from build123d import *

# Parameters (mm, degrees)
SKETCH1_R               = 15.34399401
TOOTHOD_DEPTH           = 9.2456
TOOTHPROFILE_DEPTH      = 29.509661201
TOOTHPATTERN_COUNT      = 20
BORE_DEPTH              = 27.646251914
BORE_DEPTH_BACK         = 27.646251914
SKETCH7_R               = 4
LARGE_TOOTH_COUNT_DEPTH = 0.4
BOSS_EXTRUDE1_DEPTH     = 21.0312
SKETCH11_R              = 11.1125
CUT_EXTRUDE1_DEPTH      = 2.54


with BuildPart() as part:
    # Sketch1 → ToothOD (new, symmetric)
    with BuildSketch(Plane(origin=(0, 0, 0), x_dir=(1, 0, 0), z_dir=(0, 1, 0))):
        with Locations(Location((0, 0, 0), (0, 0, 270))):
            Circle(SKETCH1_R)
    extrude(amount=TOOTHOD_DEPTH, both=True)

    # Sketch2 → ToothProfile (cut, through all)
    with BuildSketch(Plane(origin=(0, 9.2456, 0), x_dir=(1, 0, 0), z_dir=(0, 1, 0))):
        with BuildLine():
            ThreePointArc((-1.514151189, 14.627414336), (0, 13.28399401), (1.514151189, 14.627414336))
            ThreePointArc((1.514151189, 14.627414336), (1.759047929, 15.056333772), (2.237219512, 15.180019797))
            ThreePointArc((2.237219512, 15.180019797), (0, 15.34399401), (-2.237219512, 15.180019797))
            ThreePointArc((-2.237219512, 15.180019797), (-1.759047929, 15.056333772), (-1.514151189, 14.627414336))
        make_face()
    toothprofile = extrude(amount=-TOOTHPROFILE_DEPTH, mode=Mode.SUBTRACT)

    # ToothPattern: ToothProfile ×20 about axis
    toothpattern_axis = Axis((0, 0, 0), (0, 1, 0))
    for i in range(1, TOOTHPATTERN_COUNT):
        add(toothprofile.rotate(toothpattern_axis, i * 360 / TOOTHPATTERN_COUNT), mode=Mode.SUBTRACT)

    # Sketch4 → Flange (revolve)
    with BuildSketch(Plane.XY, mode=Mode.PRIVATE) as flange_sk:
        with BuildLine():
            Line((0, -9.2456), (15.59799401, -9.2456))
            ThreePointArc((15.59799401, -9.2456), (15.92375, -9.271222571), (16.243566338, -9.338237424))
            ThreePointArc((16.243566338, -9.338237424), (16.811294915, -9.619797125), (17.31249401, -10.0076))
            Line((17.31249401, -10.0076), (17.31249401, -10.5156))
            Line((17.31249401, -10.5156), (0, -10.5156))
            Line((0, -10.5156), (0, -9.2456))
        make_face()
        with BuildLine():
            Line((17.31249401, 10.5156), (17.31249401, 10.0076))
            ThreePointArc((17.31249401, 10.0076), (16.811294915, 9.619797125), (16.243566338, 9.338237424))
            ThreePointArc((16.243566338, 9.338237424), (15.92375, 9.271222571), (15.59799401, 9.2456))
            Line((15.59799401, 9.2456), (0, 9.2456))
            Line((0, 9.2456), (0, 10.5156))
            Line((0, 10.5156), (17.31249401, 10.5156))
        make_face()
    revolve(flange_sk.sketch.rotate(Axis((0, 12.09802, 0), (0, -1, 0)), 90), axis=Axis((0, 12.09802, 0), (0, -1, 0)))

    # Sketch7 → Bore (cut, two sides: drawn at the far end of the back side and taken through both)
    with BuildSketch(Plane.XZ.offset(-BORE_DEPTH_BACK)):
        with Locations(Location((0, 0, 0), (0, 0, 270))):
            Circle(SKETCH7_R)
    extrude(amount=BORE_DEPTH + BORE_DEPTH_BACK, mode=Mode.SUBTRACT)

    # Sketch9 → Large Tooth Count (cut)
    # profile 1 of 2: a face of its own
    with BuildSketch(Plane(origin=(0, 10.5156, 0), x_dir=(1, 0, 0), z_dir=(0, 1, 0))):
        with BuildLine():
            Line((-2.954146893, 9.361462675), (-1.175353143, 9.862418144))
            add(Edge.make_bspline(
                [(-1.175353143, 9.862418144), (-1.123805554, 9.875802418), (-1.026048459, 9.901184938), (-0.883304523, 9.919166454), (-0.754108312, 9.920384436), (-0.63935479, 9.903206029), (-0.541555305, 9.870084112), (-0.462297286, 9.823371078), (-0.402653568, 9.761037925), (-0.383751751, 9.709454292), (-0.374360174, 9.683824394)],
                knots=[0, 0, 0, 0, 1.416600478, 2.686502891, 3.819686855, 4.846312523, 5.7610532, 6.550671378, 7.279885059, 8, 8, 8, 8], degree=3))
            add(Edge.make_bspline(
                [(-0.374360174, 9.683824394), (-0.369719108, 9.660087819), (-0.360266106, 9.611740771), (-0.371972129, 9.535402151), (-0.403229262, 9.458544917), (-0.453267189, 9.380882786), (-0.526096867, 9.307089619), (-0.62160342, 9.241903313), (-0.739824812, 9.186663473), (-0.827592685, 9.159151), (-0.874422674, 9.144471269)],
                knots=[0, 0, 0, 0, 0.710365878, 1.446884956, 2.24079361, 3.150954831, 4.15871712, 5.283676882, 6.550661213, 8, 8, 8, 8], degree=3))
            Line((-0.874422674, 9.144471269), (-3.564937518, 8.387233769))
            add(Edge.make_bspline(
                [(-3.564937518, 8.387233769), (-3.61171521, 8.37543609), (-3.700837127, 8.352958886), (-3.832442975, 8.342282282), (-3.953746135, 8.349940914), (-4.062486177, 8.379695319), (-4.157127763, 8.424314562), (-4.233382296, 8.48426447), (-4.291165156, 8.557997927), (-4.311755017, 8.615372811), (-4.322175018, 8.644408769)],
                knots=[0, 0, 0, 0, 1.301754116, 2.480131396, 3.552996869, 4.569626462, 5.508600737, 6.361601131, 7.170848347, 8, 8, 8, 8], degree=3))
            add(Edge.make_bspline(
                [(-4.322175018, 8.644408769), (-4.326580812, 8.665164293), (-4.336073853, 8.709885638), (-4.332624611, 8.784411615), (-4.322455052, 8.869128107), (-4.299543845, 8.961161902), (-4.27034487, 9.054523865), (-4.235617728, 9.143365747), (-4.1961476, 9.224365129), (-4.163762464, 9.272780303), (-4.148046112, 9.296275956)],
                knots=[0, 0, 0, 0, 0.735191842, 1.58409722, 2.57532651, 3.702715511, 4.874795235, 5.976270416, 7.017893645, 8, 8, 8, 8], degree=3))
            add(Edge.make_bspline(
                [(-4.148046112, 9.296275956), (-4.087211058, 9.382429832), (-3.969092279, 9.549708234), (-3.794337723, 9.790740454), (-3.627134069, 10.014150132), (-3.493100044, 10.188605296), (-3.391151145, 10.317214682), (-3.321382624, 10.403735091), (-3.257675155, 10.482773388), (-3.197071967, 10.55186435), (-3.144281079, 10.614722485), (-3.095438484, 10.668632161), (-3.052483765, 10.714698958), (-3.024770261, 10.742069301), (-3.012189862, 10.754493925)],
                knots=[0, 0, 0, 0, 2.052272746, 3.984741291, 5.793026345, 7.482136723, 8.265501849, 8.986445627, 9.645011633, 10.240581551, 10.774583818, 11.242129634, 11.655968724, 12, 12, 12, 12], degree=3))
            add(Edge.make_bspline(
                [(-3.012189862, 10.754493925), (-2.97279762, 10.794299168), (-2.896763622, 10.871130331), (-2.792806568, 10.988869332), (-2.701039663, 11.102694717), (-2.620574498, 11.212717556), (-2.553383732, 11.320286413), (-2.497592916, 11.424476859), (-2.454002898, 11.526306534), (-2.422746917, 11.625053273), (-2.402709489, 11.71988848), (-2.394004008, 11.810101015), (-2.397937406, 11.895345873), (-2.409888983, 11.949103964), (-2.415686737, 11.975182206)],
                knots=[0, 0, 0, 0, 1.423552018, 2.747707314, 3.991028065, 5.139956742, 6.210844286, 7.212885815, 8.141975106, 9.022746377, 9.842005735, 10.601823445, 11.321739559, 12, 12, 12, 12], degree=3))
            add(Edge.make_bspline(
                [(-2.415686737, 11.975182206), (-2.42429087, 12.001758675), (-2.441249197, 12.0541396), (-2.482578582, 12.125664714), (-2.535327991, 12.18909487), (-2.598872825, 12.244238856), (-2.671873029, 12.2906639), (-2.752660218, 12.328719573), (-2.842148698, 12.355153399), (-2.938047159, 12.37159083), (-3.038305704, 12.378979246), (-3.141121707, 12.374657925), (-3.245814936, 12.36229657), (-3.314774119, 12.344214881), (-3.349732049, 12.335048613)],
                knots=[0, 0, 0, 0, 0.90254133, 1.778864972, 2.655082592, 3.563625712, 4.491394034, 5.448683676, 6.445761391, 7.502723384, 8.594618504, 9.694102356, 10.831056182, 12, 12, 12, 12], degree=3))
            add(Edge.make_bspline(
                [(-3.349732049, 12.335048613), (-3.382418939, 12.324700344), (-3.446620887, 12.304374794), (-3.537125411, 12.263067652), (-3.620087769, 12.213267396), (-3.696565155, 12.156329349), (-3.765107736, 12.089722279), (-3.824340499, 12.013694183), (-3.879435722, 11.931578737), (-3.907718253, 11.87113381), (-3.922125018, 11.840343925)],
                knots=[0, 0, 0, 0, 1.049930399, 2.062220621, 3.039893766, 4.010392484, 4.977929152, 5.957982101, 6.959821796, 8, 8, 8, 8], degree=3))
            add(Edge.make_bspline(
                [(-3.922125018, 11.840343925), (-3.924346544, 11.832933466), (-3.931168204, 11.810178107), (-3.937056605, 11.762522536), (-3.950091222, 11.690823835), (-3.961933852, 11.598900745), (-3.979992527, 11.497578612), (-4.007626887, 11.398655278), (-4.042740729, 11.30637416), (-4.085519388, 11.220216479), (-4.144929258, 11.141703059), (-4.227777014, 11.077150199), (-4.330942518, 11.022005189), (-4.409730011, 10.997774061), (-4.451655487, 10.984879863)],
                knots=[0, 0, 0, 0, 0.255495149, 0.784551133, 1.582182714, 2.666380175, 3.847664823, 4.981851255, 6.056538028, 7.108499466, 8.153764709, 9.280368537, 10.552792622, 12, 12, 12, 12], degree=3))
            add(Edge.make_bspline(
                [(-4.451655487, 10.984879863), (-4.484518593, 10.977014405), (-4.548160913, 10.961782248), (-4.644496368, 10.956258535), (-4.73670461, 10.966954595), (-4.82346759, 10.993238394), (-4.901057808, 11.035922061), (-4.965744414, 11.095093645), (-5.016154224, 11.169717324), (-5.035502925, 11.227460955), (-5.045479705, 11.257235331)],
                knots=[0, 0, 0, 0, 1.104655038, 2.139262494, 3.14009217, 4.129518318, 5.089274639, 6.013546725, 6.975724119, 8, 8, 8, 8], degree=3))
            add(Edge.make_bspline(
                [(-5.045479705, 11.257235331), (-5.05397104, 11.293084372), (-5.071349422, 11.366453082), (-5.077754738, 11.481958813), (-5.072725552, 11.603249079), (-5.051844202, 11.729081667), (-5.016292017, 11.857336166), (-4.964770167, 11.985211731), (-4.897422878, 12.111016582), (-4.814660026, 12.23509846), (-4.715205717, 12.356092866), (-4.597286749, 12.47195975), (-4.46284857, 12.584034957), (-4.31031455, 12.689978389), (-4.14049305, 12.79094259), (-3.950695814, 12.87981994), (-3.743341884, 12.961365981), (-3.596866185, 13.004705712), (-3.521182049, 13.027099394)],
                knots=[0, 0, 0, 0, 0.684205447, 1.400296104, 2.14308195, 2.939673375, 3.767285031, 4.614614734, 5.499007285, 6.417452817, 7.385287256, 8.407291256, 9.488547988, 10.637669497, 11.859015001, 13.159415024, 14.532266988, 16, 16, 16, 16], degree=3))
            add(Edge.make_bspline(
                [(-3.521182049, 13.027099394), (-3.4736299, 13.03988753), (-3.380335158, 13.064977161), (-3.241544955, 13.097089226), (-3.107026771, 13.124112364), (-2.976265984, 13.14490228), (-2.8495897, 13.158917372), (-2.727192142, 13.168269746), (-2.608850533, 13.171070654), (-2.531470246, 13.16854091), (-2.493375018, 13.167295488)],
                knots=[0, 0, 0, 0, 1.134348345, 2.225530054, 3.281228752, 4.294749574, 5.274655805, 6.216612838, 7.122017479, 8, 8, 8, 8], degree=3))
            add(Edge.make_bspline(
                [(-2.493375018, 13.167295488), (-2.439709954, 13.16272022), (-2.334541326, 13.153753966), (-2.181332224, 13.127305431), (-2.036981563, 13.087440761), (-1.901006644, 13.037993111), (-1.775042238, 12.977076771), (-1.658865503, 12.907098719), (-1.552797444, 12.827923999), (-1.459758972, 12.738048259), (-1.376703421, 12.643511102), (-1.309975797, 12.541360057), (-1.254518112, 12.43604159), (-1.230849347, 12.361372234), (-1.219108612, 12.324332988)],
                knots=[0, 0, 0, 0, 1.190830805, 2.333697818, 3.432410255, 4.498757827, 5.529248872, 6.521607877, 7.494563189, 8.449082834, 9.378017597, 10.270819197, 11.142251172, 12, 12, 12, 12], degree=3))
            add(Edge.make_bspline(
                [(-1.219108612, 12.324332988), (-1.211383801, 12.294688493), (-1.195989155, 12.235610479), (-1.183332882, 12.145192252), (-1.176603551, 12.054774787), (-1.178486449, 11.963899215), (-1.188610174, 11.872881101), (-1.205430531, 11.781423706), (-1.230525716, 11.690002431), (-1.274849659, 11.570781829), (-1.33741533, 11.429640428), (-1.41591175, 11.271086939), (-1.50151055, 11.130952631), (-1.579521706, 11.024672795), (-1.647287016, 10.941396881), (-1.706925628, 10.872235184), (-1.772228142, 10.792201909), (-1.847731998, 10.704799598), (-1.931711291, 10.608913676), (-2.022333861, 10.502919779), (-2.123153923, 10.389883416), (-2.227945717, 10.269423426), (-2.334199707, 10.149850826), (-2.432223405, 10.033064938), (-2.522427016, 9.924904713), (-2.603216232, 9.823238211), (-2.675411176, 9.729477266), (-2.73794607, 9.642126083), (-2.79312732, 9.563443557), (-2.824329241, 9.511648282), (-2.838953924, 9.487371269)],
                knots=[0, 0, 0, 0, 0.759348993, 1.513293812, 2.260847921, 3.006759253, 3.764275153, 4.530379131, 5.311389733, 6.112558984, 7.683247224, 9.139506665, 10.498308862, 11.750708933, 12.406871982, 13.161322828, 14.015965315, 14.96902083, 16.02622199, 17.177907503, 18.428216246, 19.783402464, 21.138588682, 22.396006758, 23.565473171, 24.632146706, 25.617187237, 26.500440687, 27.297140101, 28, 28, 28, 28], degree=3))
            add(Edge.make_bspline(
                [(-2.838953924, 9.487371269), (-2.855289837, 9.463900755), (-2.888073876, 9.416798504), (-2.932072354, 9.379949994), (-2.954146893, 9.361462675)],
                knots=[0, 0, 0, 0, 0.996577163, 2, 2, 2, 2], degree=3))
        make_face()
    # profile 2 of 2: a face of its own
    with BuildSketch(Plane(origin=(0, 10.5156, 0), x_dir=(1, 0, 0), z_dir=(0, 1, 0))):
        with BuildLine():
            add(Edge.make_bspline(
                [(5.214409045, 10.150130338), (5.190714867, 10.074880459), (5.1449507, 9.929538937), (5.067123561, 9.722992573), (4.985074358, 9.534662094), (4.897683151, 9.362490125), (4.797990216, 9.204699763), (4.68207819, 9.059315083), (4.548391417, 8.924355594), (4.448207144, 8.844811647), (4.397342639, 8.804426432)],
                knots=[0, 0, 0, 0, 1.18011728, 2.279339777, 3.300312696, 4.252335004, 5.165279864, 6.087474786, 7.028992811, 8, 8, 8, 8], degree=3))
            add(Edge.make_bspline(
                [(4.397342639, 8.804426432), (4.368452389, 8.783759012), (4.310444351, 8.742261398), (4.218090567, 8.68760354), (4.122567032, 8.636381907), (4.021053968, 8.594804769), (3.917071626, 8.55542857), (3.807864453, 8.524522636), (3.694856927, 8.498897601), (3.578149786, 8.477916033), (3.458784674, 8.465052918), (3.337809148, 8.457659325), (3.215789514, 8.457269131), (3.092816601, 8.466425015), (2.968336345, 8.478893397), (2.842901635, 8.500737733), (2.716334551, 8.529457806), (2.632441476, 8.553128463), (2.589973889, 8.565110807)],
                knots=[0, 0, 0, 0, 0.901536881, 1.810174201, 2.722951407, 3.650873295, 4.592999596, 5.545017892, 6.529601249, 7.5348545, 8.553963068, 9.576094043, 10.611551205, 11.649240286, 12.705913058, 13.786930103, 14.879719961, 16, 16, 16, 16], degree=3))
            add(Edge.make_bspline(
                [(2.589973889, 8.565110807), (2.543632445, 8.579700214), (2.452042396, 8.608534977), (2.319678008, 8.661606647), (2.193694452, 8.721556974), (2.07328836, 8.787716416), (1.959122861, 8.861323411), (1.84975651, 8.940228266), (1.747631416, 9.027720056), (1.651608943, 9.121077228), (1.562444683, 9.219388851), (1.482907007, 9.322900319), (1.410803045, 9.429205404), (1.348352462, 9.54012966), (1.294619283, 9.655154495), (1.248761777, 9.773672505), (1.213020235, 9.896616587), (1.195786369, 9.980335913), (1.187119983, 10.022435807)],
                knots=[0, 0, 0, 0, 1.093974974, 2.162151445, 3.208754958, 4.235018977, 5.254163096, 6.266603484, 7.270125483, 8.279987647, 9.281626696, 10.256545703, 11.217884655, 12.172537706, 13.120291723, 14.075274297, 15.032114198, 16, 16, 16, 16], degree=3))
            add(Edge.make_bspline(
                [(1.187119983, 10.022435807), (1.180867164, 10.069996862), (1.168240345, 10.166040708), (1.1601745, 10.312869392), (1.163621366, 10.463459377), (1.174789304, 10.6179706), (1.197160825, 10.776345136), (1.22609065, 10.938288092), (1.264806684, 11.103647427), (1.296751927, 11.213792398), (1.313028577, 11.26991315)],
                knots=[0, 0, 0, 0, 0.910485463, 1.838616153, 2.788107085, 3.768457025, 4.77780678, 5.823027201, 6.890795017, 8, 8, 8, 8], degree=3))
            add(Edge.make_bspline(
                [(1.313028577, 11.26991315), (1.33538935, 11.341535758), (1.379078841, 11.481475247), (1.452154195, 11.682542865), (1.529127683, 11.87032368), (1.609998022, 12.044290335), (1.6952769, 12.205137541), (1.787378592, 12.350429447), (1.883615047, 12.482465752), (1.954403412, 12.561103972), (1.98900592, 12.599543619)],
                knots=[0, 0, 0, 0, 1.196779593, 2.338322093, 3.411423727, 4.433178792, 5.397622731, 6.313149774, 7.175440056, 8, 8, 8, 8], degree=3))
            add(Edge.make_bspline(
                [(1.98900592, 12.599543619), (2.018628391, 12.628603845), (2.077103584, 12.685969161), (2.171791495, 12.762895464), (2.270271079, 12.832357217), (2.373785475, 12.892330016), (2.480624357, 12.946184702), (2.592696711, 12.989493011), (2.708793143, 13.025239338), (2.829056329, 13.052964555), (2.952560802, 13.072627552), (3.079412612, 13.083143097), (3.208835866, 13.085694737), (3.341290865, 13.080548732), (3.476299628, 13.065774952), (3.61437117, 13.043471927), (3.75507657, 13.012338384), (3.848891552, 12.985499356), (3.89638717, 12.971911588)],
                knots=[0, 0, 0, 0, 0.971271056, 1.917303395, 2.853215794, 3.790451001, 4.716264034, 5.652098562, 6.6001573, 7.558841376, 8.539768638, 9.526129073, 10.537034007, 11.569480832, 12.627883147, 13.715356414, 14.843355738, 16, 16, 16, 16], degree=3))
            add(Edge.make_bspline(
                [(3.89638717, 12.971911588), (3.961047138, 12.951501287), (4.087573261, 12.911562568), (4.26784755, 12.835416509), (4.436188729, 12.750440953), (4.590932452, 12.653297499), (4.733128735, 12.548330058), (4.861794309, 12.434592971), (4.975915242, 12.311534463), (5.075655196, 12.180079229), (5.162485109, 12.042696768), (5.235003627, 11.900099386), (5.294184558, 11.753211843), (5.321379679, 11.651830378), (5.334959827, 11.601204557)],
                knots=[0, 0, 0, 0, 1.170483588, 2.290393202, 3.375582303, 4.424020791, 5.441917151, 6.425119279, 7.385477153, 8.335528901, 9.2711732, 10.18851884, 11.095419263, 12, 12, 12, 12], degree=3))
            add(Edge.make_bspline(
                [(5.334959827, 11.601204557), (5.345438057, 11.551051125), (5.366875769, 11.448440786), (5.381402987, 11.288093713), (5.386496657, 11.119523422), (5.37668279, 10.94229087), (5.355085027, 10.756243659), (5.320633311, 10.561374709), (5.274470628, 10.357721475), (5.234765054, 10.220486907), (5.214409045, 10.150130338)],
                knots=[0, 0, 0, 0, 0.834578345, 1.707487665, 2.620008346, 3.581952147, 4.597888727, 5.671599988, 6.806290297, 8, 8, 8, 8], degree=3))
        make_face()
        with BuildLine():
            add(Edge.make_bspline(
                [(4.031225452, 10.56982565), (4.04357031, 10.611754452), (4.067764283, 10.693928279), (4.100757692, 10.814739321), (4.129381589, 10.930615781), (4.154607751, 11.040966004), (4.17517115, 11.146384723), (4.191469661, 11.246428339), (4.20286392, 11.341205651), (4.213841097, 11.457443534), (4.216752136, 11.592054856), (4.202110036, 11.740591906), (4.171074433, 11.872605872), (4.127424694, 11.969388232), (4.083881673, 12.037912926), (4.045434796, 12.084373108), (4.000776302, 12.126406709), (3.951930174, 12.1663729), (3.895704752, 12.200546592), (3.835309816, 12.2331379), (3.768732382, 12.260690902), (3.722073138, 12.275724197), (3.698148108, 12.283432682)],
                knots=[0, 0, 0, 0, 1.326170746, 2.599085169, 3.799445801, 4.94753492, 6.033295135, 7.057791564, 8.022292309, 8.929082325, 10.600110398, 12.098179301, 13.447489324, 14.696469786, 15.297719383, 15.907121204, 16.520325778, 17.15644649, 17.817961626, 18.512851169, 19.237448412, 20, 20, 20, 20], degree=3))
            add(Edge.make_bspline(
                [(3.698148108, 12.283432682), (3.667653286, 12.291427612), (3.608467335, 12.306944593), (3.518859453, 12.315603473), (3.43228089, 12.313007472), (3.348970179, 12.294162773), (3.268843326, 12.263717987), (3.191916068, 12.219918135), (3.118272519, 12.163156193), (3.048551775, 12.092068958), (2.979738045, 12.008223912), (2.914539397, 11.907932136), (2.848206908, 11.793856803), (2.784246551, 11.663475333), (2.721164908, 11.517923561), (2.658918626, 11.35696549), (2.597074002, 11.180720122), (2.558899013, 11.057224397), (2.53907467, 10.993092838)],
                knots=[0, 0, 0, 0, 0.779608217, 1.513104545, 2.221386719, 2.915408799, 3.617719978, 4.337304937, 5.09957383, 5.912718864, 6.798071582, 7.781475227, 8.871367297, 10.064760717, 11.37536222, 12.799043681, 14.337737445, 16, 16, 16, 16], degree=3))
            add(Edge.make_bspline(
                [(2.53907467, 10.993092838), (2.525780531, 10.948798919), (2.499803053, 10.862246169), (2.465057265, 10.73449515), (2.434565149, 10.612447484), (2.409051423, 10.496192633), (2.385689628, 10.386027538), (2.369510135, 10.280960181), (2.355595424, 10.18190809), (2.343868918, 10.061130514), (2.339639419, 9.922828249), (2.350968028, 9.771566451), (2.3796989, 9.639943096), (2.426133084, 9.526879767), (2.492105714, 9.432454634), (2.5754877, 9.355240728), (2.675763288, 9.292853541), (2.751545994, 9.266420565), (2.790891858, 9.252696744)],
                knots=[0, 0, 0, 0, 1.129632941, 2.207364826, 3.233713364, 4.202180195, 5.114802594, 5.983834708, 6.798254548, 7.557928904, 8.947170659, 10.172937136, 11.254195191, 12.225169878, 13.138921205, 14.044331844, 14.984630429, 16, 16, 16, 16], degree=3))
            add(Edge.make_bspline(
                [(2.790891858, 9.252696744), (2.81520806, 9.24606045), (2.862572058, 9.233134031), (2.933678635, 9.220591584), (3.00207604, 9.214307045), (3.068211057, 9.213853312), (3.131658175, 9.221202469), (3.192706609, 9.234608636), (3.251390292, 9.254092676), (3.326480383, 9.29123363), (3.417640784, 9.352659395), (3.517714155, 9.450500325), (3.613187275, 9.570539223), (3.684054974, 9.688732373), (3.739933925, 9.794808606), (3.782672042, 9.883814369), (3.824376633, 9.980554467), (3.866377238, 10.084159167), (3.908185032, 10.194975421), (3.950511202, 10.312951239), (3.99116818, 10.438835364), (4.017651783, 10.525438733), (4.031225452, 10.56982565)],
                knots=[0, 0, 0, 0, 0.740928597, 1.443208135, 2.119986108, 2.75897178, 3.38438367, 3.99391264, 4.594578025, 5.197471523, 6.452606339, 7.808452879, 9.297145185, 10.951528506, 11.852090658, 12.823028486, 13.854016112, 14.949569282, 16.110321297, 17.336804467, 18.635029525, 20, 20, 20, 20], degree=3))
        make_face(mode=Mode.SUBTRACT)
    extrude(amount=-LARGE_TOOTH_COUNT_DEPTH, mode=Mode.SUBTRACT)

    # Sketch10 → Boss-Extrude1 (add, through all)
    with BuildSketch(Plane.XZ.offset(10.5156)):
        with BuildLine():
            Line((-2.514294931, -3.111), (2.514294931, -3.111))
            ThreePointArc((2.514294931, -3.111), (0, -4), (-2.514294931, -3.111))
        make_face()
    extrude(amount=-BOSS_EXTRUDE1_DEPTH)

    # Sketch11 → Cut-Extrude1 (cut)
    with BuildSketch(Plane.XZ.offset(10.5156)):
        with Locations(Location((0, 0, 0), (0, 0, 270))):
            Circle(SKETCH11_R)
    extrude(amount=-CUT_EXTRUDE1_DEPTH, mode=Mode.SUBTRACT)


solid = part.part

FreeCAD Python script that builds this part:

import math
import FreeCAD as App
import Part
import Sketcher
from FreeCAD import Vector
Q = App.Units.Quantity

doc = App.newDocument("Part")
body = doc.addObject("PartDesign::Body", "Body")

sketch1 = body.newObject("Sketcher::SketchObject", "Sketch")
sketch1.AttachmentSupport = (doc.getObject("XZ_Plane"), [""])
sketch1.MapMode = "FlatFace"
sketch1.addGeometry(Part.Circle(Vector(0, 0, 0), Vector(0, 0, 1), 15), False)
sketch1.addConstraint([
    Sketcher.Constraint("Coincident", 0, 3, -1, 1),
    Sketcher.Constraint("Diameter", 0, Q("30.687988 mm")),
])
pad1 = body.newObject("PartDesign::Pad", "Pad")
pad1.Profile = sketch1
pad1.Length = Q("0.728 in")
pad1.Midplane = True

sketch2 = body.newObject("Sketcher::SketchObject", "Sketch001")
sketch2.AttachmentSupport = (doc.getObject("XZ_Plane"), [""])
sketch2.MapMode = "FlatFace"
sketch2.AttachmentOffset = App.Placement(Vector(0, 0, -0.364 * 25.4), App.Rotation())
sketch2.addGeometry([
    Part.ArcOfCircle(Part.Circle(Vector(0, -14.8, 0), Vector(0, 0, 1), 1.5), math.radians(7), math.radians(173)),
    Part.ArcOfCircle(Part.Circle(Vector(2.1, -14.6, 0), Vector(0, 0, 1), 0.6), math.radians(-173), math.radians(-82)),
    Part.ArcOfCircle(Part.Circle(Vector(0, 0, 0), Vector(0, 0, 1), 15.3), math.radians(-98.38), math.radians(-81.62)),
    Part.ArcOfCircle(Part.Circle(Vector(-2.1, -14.6, 0), Vector(0, 0, 1), 0.6), math.radians(-98), math.radians(-7)),
], False)
sketch2.addConstraint([
    Sketcher.Constraint("Tangent", 0, 1, 1, 1),
    Sketcher.Constraint("Tangent", 1, 2, 2, 2),
    Sketcher.Constraint("Tangent", 2, 1, 3, 1),
    Sketcher.Constraint("Tangent", 3, 2, 0, 2),
    Sketcher.Constraint("Coincident", 2, 3, -1, 1),
    Sketcher.Constraint("Equal", 1, 3),
    Sketcher.Constraint("PointOnObject", 0, 3, -2),
    Sketcher.Constraint("Radius", 1, Q("0.025 in")),
    Sketcher.Constraint("Radius", 0, Q("1.525 mm")),
    Sketcher.Constraint("Radius", 2, Q("15.343994 mm")),
    Sketcher.Constraint("DistanceX", -1, 1, 0, 1, Q("1.514151 mm")),
])
pocket1 = body.newObject("PartDesign::Pocket", "Pocket")
pocket1.Profile = sketch2
pocket1.Type = "ThroughAll"
pocket1.Reversed = True
doc.recompute()

polarpattern = body.newObject("PartDesign::PolarPattern", "PolarPattern")
polarpattern.Originals = [pocket1]
polarpattern.Axis = (doc.getObject("Y_Axis"), [""])
polarpattern.Angle = 360
polarpattern.Occurrences = 20
body.Tip = polarpattern

sketch3 = body.newObject("Sketcher::SketchObject", "Sketch002")
sketch3.AttachmentSupport = (doc.getObject("XY_Plane"), [""])
sketch3.MapMode = "FlatFace"
sketch3.addGeometry([
    Part.LineSegment(Vector(15.6, -9.2, 0), Vector(0, -9.2, 0)),
    Part.LineSegment(Vector(0, -9.2, 0), Vector(0, -10.5, 0)),
    Part.LineSegment(Vector(0, -10.5, 0), Vector(17.3, -10.5, 0)),
    Part.LineSegment(Vector(17.3, -10.5, 0), Vector(17.3, -10, 0)),
    Part.ArcOfCircle(Part.Circle(Vector(15.1, -12.3, 0), Vector(0, 0, 1), 3.2), math.radians(47), math.radians(69)),
    Part.ArcOfCircle(Part.Circle(Vector(15.6, -11.8, 0), Vector(0, 0, 1), 2.6), math.radians(74.5), math.radians(89.17)),
    Part.LineSegment(Vector(17.3, 10, 0), Vector(17.3, 10.5, 0)),
    Part.LineSegment(Vector(17.3, 10.5, 0), Vector(0, 10.5, 0)),
    Part.LineSegment(Vector(0, 10.5, 0), Vector(0, 9.2, 0)),
    Part.LineSegment(Vector(0, 9.2, 0), Vector(15.6, 9.2, 0)),
    Part.ArcOfCircle(Part.Circle(Vector(15.6, 11.8, 0), Vector(0, 0, 1), 2.6), math.radians(-89.17), math.radians(-74.5)),
    Part.ArcOfCircle(Part.Circle(Vector(15.1, 12.3, 0), Vector(0, 0, 1), 3.2), math.radians(-69), math.radians(-47)),
], False)
sketch3.addConstraint([
    Sketcher.Constraint("Coincident", 0, 2, 1, 1),
    Sketcher.Constraint("Coincident", 1, 2, 2, 1),
    Sketcher.Constraint("Coincident", 2, 2, 3, 1),
    Sketcher.Constraint("Coincident", 3, 2, 4, 1),
    Sketcher.Constraint("Coincident", 4, 2, 5, 1),
    Sketcher.Constraint("Coincident", 5, 2, 0, 1),
    Sketcher.Constraint("Coincident", 6, 2, 7, 1),
    Sketcher.Constraint("Coincident", 7, 2, 8, 1),
    Sketcher.Constraint("Coincident", 8, 2, 9, 1),
    Sketcher.Constraint("Coincident", 9, 2, 10, 1),
    Sketcher.Constraint("Coincident", 10, 2, 11, 1),
    Sketcher.Constraint("Coincident", 11, 2, 6, 1),
    Sketcher.Constraint("Horizontal", 0),
    Sketcher.Constraint("Vertical", 1),
    Sketcher.Constraint("Horizontal", 2),
    Sketcher.Constraint("Vertical", 3),
    Sketcher.Constraint("Vertical", 6),
    Sketcher.Constraint("Horizontal", 7),
    Sketcher.Constraint("Vertical", 8),
    Sketcher.Constraint("Horizontal", 9),
    Sketcher.Constraint("Equal", 5, 10),
    Sketcher.Constraint("Equal", 4, 11),
    Sketcher.Constraint("Symmetric", 1, 2, 7, 2, -1, 1),
    Sketcher.Constraint("Symmetric", 5, 3, 10, 3, -1),
    Sketcher.Constraint("Symmetric", 4, 3, 11, 3, -1),
    Sketcher.Constraint("Symmetric", 0, 2, 8, 2, -1),
    Sketcher.Constraint("Vertical", 3, 2, 6, 2),
    Sketcher.Constraint("DistanceY", 1, 2, 1, 1, Q("0.05 in")),
    Sketcher.Constraint("DistanceY", 3, 1, 3, 2, Q("0.02 in")),
    Sketcher.Constraint("DistanceY", 0, 2, -1, 1, Q("0.364 in")),
    Sketcher.Constraint("Radius", 4, Q("3.203644 mm")),
    Sketcher.Constraint("Radius", 5, Q("2.553396 mm")),
    Sketcher.Constraint("DistanceX", 5, 2, 3, 2, Q("0.0675 in")),
    Sketcher.Constraint("DistanceX", 0, 2, 0, 1, Q("15.597994 mm")),
    Sketcher.Constraint("DistanceX", -1, 1, 5, 3, Q("15.561062 mm")),
    Sketcher.Constraint("DistanceX", 4, 3, 2, 2, Q("2.201469 mm")),
])
revolution = body.newObject("PartDesign::Revolution", "Revolution")
revolution.Profile = sketch3
revolution.ReferenceAxis = (sketch3, ["V_Axis"])
revolution.Angle = 360

sketch4 = body.newObject("Sketcher::SketchObject", "Sketch003")
sketch4.AttachmentSupport = (doc.getObject("XZ_Plane"), [""])
sketch4.MapMode = "FlatFace"
sketch4.addGeometry(Part.Circle(Vector(0, 0, 0), Vector(0, 0, 1), 4), False)
sketch4.addConstraint([
    Sketcher.Constraint("Coincident", 0, 3, -1, 1),
    Sketcher.Constraint("Diameter", 0, Q("8 mm")),
])
pocket2 = body.newObject("PartDesign::Pocket", "Pocket001")
pocket2.Profile = sketch4
pocket2.Type = "ThroughAll"
pocket2.Midplane = True

sketch5 = body.newObject("Sketcher::SketchObject", "Sketch004")
sketch5.AttachmentSupport = (doc.getObject("XZ_Plane"), [""])
sketch5.MapMode = "FlatFace"
sketch5.AttachmentOffset = App.Placement(Vector(0, 0, -0.414 * 25.4), App.Rotation())
sketch5.addGeometry([
    Part.LineSegment(Vector(-1.175353, -9.862418, 0), Vector(-2.954147, -9.361463, 0)),
    Part.BSplineCurve([Vector(-2.838954, -9.487371, 0), Vector(-2.85529, -9.463901, 0), Vector(-2.888074, -9.416799, 0), Vector(-2.932072, -9.37995, 0), Vector(-2.954147, -9.361463, 0)], [4, 1, 4], [0, 0.996577163, 2], False, 3, [1, 1, 1, 1, 1], False),
    Part.BSplineCurve([Vector(-1.219109, -12.324333, 0), Vector(-1.211384, -12.294688, 0), Vector(-1.195989, -12.23561, 0), Vector(-1.183333, -12.145192, 0), Vector(-1.176604, -12.054775, 0), Vector(-1.178486, -11.963899, 0), Vector(-1.18861, -11.872881, 0), Vector(-1.205431, -11.781424, 0), Vector(-1.230526, -11.690002, 0), Vector(-1.27485, -11.570782, 0), Vector(-1.337415, -11.42964, 0), Vector(-1.415912, -11.271087, 0), Vector(-1.501511, -11.130953, 0), Vector(-1.579522, -11.024673, 0), Vector(-1.647287, -10.941397, 0), Vector(-1.706926, -10.872235, 0), Vector(-1.772228, -10.792202, 0), Vector(-1.847732, -10.7048, 0), Vector(-1.931711, -10.608914, 0), Vector(-2.022334, -10.50292, 0), Vector(-2.123154, -10.389883, 0), Vector(-2.227946, -10.269423, 0), Vector(-2.3342, -10.149851, 0), Vector(-2.432223, -10.033065, 0), Vector(-2.522427, -9.924905, 0), Vector(-2.603216, -9.823238, 0), Vector(-2.675411, -9.729477, 0), Vector(-2.737946, -9.642126, 0), Vector(-2.793127, -9.563444, 0), Vector(-2.824329, -9.511648, 0), Vector(-2.838954, -9.487371, 0)], [4, 1, 1, 1, 1, 1, 1, 1, 1, 1, 1, 1, 1, 1, 1, 1, 1, 1, 1, 1, 1, 1, 1, 1, 1, 1, 1, 1, 4], [0, 0.759348993, 1.513293812, 2.260847921, 3.006759253, 3.764275153, 4.530379131, 5.311389733, 6.112558984, 7.683247224, 9.139506665, 10.498308862, 11.750708933, 12.406871982, 13.161322828, 14.015965315, 14.96902083, 16.02622199, 17.177907503, 18.428216246, 19.783402464, 21.138588682, 22.396006758, 23.565473171, 24.632146706, 25.617187237, 26.500440687, 27.297140101, 28], False, 3, [1, 1, 1, 1, 1, 1, 1, 1, 1, 1, 1, 1, 1, 1, 1, 1, 1, 1, 1, 1, 1, 1, 1, 1, 1, 1, 1, 1, 1, 1, 1], False),
    Part.BSplineCurve([Vector(-2.493375, -13.167295, 0), Vector(-2.43971, -13.16272, 0), Vector(-2.334541, -13.153754, 0), Vector(-2.181332, -13.127305, 0), Vector(-2.036982, -13.087441, 0), Vector(-1.901007, -13.037993, 0), Vector(-1.775042, -12.977077, 0), Vector(-1.658866, -12.907099, 0), Vector(-1.552797, -12.827924, 0), Vector(-1.459759, -12.738048, 0), Vector(-1.376703, -12.643511, 0), Vector(-1.309976, -12.54136, 0), Vector(-1.254518, -12.436042, 0), Vector(-1.230849, -12.361372, 0), Vector(-1.219109, -12.324333, 0)], [4, 1, 1, 1, 1, 1, 1, 1, 1, 1, 1, 1, 4], [0, 1.190830805, 2.333697818, 3.432410255, 4.498757827, 5.529248872, 6.521607877, 7.494563189, 8.449082834, 9.378017597, 10.270819197, 11.142251172, 12], False, 3, [1, 1, 1, 1, 1, 1, 1, 1, 1, 1, 1, 1, 1, 1, 1], False),
    Part.BSplineCurve([Vector(-3.521182, -13.027099, 0), Vector(-3.47363, -13.039888, 0), Vector(-3.380335, -13.064977, 0), Vector(-3.241545, -13.097089, 0), Vector(-3.107027, -13.124112, 0), Vector(-2.976266, -13.144902, 0), Vector(-2.84959, -13.158917, 0), Vector(-2.727192, -13.16827, 0), Vector(-2.608851, -13.171071, 0), Vector(-2.53147, -13.168541, 0), Vector(-2.493375, -13.167295, 0)], [4, 1, 1, 1, 1, 1, 1, 1, 4], [0, 1.134348345, 2.225530054, 3.281228752, 4.294749574, 5.274655805, 6.216612838, 7.122017479, 8], False, 3, [1, 1, 1, 1, 1, 1, 1, 1, 1, 1, 1], False),
    Part.BSplineCurve([Vector(-5.04548, -11.257235, 0), Vector(-5.053971, -11.293084, 0), Vector(-5.071349, -11.366453, 0), Vector(-5.077755, -11.481959, 0), Vector(-5.072726, -11.603249, 0), Vector(-5.051844, -11.729082, 0), Vector(-5.016292, -11.857336, 0), Vector(-4.96477, -11.985212, 0), Vector(-4.897423, -12.111017, 0), Vector(-4.81466, -12.235098, 0), Vector(-4.715206, -12.356093, 0), Vector(-4.597287, -12.47196, 0), Vector(-4.462849, -12.584035, 0), Vector(-4.310315, -12.689978, 0), Vector(-4.140493, -12.790943, 0), Vector(-3.950696, -12.87982, 0), Vector(-3.743342, -12.961366, 0), Vector(-3.596866, -13.004706, 0), Vector(-3.521182, -13.027099, 0)], [4, 1, 1, 1, 1, 1, 1, 1, 1, 1, 1, 1, 1, 1, 1, 1, 4], [0, 0.684205447, 1.400296104, 2.14308195, 2.939673375, 3.767285031, 4.614614734, 5.499007285, 6.417452817, 7.385287256, 8.407291256, 9.488547988, 10.637669497, 11.859015001, 13.159415024, 14.532266988, 16], False, 3, [1, 1, 1, 1, 1, 1, 1, 1, 1, 1, 1, 1, 1, 1, 1, 1, 1, 1, 1], False),
    Part.BSplineCurve([Vector(-4.451655, -10.98488, 0), Vector(-4.484519, -10.977014, 0), Vector(-4.548161, -10.961782, 0), Vector(-4.644496, -10.956259, 0), Vector(-4.736705, -10.966955, 0), Vector(-4.823468, -10.993238, 0), Vector(-4.901058, -11.035922, 0), Vector(-4.965744, -11.095094, 0), Vector(-5.016154, -11.169717, 0), Vector(-5.035503, -11.227461, 0), Vector(-5.04548, -11.257235, 0)], [4, 1, 1, 1, 1, 1, 1, 1, 4], [0, 1.104655038, 2.139262494, 3.14009217, 4.129518318, 5.089274639, 6.013546725, 6.975724119, 8], False, 3, [1, 1, 1, 1, 1, 1, 1, 1, 1, 1, 1], False),
    Part.BSplineCurve([Vector(-3.922125, -11.840344, 0), Vector(-3.924347, -11.832933, 0), Vector(-3.931168, -11.810178, 0), Vector(-3.937057, -11.762523, 0), Vector(-3.950091, -11.690824, 0), Vector(-3.961934, -11.598901, 0), Vector(-3.979993, -11.497579, 0), Vector(-4.007627, -11.398655, 0), Vector(-4.042741, -11.306374, 0), Vector(-4.085519, -11.220216, 0), Vector(-4.144929, -11.141703, 0), Vector(-4.227777, -11.07715, 0), Vector(-4.330943, -11.022005, 0), Vector(-4.40973, -10.997774, 0), Vector(-4.451655, -10.98488, 0)], [4, 1, 1, 1, 1, 1, 1, 1, 1, 1, 1, 1, 4], [0, 0.255495149, 0.784551133, 1.582182714, 2.666380175, 3.847664823, 4.981851255, 6.056538028, 7.108499466, 8.153764709, 9.280368537, 10.552792622, 12], False, 3, [1, 1, 1, 1, 1, 1, 1, 1, 1, 1, 1, 1, 1, 1, 1], False),
    Part.BSplineCurve([Vector(-3.349732, -12.335049, 0), Vector(-3.382419, -12.3247, 0), Vector(-3.446621, -12.304375, 0), Vector(-3.537125, -12.263068, 0), Vector(-3.620088, -12.213267, 0), Vector(-3.696565, -12.156329, 0), Vector(-3.765108, -12.089722, 0), Vector(-3.82434, -12.013694, 0), Vector(-3.879436, -11.931579, 0), Vector(-3.907718, -11.871134, 0), Vector(-3.922125, -11.840344, 0)], [4, 1, 1, 1, 1, 1, 1, 1, 4], [0, 1.049930399, 2.062220621, 3.039893766, 4.010392484, 4.977929152, 5.957982101, 6.959821796, 8], False, 3, [1, 1, 1, 1, 1, 1, 1, 1, 1, 1, 1], False),
    Part.BSplineCurve([Vector(-2.415687, -11.975182, 0), Vector(-2.424291, -12.001759, 0), Vector(-2.441249, -12.05414, 0), Vector(-2.482579, -12.125665, 0), Vector(-2.535328, -12.189095, 0), Vector(-2.598873, -12.244239, 0), Vector(-2.671873, -12.290664, 0), Vector(-2.75266, -12.32872, 0), Vector(-2.842149, -12.355153, 0), Vector(-2.938047, -12.371591, 0), Vector(-3.038306, -12.378979, 0), Vector(-3.141122, -12.374658, 0), Vector(-3.245815, -12.362297, 0), Vector(-3.314774, -12.344215, 0), Vector(-3.349732, -12.335049, 0)], [4, 1, 1, 1, 1, 1, 1, 1, 1, 1, 1, 1, 4], [0, 0.90254133, 1.778864972, 2.655082592, 3.563625712, 4.491394034, 5.448683676, 6.445761391, 7.502723384, 8.594618504, 9.694102356, 10.831056182, 12], False, 3, [1, 1, 1, 1, 1, 1, 1, 1, 1, 1, 1, 1, 1, 1, 1], False),
    Part.BSplineCurve([Vector(-3.01219, -10.754494, 0), Vector(-2.972798, -10.794299, 0), Vector(-2.896764, -10.87113, 0), Vector(-2.792807, -10.988869, 0), Vector(-2.70104, -11.102695, 0), Vector(-2.620574, -11.212718, 0), Vector(-2.553384, -11.320286, 0), Vector(-2.497593, -11.424477, 0), Vector(-2.454003, -11.526307, 0), Vector(-2.422747, -11.625053, 0), Vector(-2.402709, -11.719888, 0), Vector(-2.394004, -11.810101, 0), Vector(-2.397937, -11.895346, 0), Vector(-2.409889, -11.949104, 0), Vector(-2.415687, -11.975182, 0)], [4, 1, 1, 1, 1, 1, 1, 1, 1, 1, 1, 1, 4], [0, 1.423552018, 2.747707314, 3.991028065, 5.139956742, 6.210844286, 7.212885815, 8.141975106, 9.022746377, 9.842005735, 10.601823445, 11.321739559, 12], False, 3, [1, 1, 1, 1, 1, 1, 1, 1, 1, 1, 1, 1, 1, 1, 1], False),
    Part.BSplineCurve([Vector(-4.148046, -9.296276, 0), Vector(-4.087211, -9.38243, 0), Vector(-3.969092, -9.549708, 0), Vector(-3.794338, -9.79074, 0), Vector(-3.627134, -10.01415, 0), Vector(-3.4931, -10.188605, 0), Vector(-3.391151, -10.317215, 0), Vector(-3.321383, -10.403735, 0), Vector(-3.257675, -10.482773, 0), Vector(-3.197072, -10.551864, 0), Vector(-3.144281, -10.614722, 0), Vector(-3.095438, -10.668632, 0), Vector(-3.052484, -10.714699, 0), Vector(-3.02477, -10.742069, 0), Vector(-3.01219, -10.754494, 0)], [4, 1, 1, 1, 1, 1, 1, 1, 1, 1, 1, 1, 4], [0, 2.052272746, 3.984741291, 5.793026345, 7.482136723, 8.265501849, 8.986445627, 9.645011633, 10.240581551, 10.774583818, 11.242129634, 11.655968724, 12], False, 3, [1, 1, 1, 1, 1, 1, 1, 1, 1, 1, 1, 1, 1, 1, 1], False),
    Part.BSplineCurve([Vector(-4.322175, -8.644409, 0), Vector(-4.326581, -8.665164, 0), Vector(-4.336074, -8.709886, 0), Vector(-4.332625, -8.784412, 0), Vector(-4.322455, -8.869128, 0), Vector(-4.299544, -8.961162, 0), Vector(-4.270345, -9.054524, 0), Vector(-4.235618, -9.143366, 0), Vector(-4.196148, -9.224365, 0), Vector(-4.163762, -9.27278, 0), Vector(-4.148046, -9.296276, 0)], [4, 1, 1, 1, 1, 1, 1, 1, 4], [0, 0.735191842, 1.58409722, 2.57532651, 3.702715511, 4.874795235, 5.976270416, 7.017893645, 8], False, 3, [1, 1, 1, 1, 1, 1, 1, 1, 1, 1, 1], False),
    Part.BSplineCurve([Vector(-3.564938, -8.387234, 0), Vector(-3.611715, -8.375436, 0), Vector(-3.700837, -8.352959, 0), Vector(-3.832443, -8.342282, 0), Vector(-3.953746, -8.349941, 0), Vector(-4.062486, -8.379695, 0), Vector(-4.157128, -8.424315, 0), Vector(-4.233382, -8.484264, 0), Vector(-4.291165, -8.557998, 0), Vector(-4.311755, -8.615373, 0), Vector(-4.322175, -8.644409, 0)], [4, 1, 1, 1, 1, 1, 1, 1, 4], [0, 1.301754116, 2.480131396, 3.552996869, 4.569626462, 5.508600737, 6.361601131, 7.170848347, 8], False, 3, [1, 1, 1, 1, 1, 1, 1, 1, 1, 1, 1], False),
    Part.LineSegment(Vector(-3.564938, -8.387234, 0), Vector(-0.874423, -9.144471, 0)),
    Part.BSplineCurve([Vector(-0.37436, -9.683824, 0), Vector(-0.369719, -9.660088, 0), Vector(-0.360266, -9.611741, 0), Vector(-0.371972, -9.535402, 0), Vector(-0.403229, -9.458545, 0), Vector(-0.453267, -9.380883, 0), Vector(-0.526097, -9.30709, 0), Vector(-0.621603, -9.241903, 0), Vector(-0.739825, -9.186663, 0), Vector(-0.827593, -9.159151, 0), Vector(-0.874423, -9.144471, 0)], [4, 1, 1, 1, 1, 1, 1, 1, 4], [0, 0.710365878, 1.446884956, 2.24079361, 3.150954831, 4.15871712, 5.283676882, 6.550661213, 8], False, 3, [1, 1, 1, 1, 1, 1, 1, 1, 1, 1, 1], False),
    Part.BSplineCurve([Vector(-1.175353, -9.862418, 0), Vector(-1.123806, -9.875802, 0), Vector(-1.026048, -9.901185, 0), Vector(-0.883305, -9.919166, 0), Vector(-0.754108, -9.920384, 0), Vector(-0.639355, -9.903206, 0), Vector(-0.541555, -9.870084, 0), Vector(-0.462297, -9.823371, 0), Vector(-0.402654, -9.761038, 0), Vector(-0.383752, -9.709454, 0), Vector(-0.37436, -9.683824, 0)], [4, 1, 1, 1, 1, 1, 1, 1, 4], [0, 1.416600478, 2.686502891, 3.819686855, 4.846312523, 5.7610532, 6.550671378, 7.279885059, 8], False, 3, [1, 1, 1, 1, 1, 1, 1, 1, 1, 1, 1], False),
    Part.BSplineCurve([Vector(5.214409, -10.15013, 0), Vector(5.190715, -10.07488, 0), Vector(5.144951, -9.929539, 0), Vector(5.067124, -9.722993, 0), Vector(4.985074, -9.534662, 0), Vector(4.897683, -9.36249, 0), Vector(4.79799, -9.2047, 0), Vector(4.682078, -9.059315, 0), Vector(4.548391, -8.924356, 0), Vector(4.448207, -8.844812, 0), Vector(4.397343, -8.804426, 0)], [4, 1, 1, 1, 1, 1, 1, 1, 4], [0, 1.18011728, 2.279339777, 3.300312696, 4.252335004, 5.165279864, 6.087474786, 7.028992811, 8], False, 3, [1, 1, 1, 1, 1, 1, 1, 1, 1, 1, 1], False),
    Part.BSplineCurve([Vector(5.33496, -11.601205, 0), Vector(5.345438, -11.551051, 0), Vector(5.366876, -11.448441, 0), Vector(5.381403, -11.288094, 0), Vector(5.386497, -11.119523, 0), Vector(5.376683, -10.942291, 0), Vector(5.355085, -10.756244, 0), Vector(5.320633, -10.561375, 0), Vector(5.274471, -10.357721, 0), Vector(5.234765, -10.220487, 0), Vector(5.214409, -10.15013, 0)], [4, 1, 1, 1, 1, 1, 1, 1, 4], [0, 0.834578345, 1.707487665, 2.620008346, 3.581952147, 4.597888727, 5.671599988, 6.806290297, 8], False, 3, [1, 1, 1, 1, 1, 1, 1, 1, 1, 1, 1], False),
    Part.BSplineCurve([Vector(3.896387, -12.971912, 0), Vector(3.961047, -12.951501, 0), Vector(4.087573, -12.911563, 0), Vector(4.267848, -12.835417, 0), Vector(4.436189, -12.750441, 0), Vector(4.590932, -12.653297, 0), Vector(4.733129, -12.54833, 0), Vector(4.861794, -12.434593, 0), Vector(4.975915, -12.311534, 0), Vector(5.075655, -12.180079, 0), Vector(5.162485, -12.042697, 0), Vector(5.235004, -11.900099, 0), Vector(5.294185, -11.753212, 0), Vector(5.32138, -11.65183, 0), Vector(5.33496, -11.601205, 0)], [4, 1, 1, 1, 1, 1, 1, 1, 1, 1, 1, 1, 4], [0, 1.170483588, 2.290393202, 3.375582303, 4.424020791, 5.441917151, 6.425119279, 7.385477153, 8.335528901, 9.2711732, 10.18851884, 11.095419263, 12], False, 3, [1, 1, 1, 1, 1, 1, 1, 1, 1, 1, 1, 1, 1, 1, 1], False),
    Part.BSplineCurve([Vector(1.989006, -12.599544, 0), Vector(2.018628, -12.628604, 0), Vector(2.077104, -12.685969, 0), Vector(2.171791, -12.762895, 0), Vector(2.270271, -12.832357, 0), Vector(2.373785, -12.89233, 0), Vector(2.480624, -12.946185, 0), Vector(2.592697, -12.989493, 0), Vector(2.708793, -13.025239, 0), Vector(2.829056, -13.052965, 0), Vector(2.952561, -13.072628, 0), Vector(3.079413, -13.083143, 0), Vector(3.208836, -13.085695, 0), Vector(3.341291, -13.080549, 0), Vector(3.4763, -13.065775, 0), Vector(3.614371, -13.043472, 0), Vector(3.755077, -13.012338, 0), Vector(3.848892, -12.985499, 0), Vector(3.896387, -12.971912, 0)], [4, 1, 1, 1, 1, 1, 1, 1, 1, 1, 1, 1, 1, 1, 1, 1, 4], [0, 0.971271056, 1.917303395, 2.853215794, 3.790451001, 4.716264034, 5.652098562, 6.6001573, 7.558841376, 8.539768638, 9.526129073, 10.537034007, 11.569480832, 12.627883147, 13.715356414, 14.843355738, 16], False, 3, [1, 1, 1, 1, 1, 1, 1, 1, 1, 1, 1, 1, 1, 1, 1, 1, 1, 1, 1], False),
    Part.BSplineCurve([Vector(1.313029, -11.269913, 0), Vector(1.335389, -11.341536, 0), Vector(1.379079, -11.481475, 0), Vector(1.452154, -11.682543, 0), Vector(1.529128, -11.870324, 0), Vector(1.609998, -12.04429, 0), Vector(1.695277, -12.205138, 0), Vector(1.787379, -12.350429, 0), Vector(1.883615, -12.482466, 0), Vector(1.954403, -12.561104, 0), Vector(1.989006, -12.599544, 0)], [4, 1, 1, 1, 1, 1, 1, 1, 4], [0, 1.196779593, 2.338322093, 3.411423727, 4.433178792, 5.397622731, 6.313149774, 7.175440056, 8], False, 3, [1, 1, 1, 1, 1, 1, 1, 1, 1, 1, 1], False),
    Part.BSplineCurve([Vector(1.18712, -10.022436, 0), Vector(1.180867, -10.069997, 0), Vector(1.16824, -10.166041, 0), Vector(1.160175, -10.312869, 0), Vector(1.163621, -10.463459, 0), Vector(1.174789, -10.617971, 0), Vector(1.197161, -10.776345, 0), Vector(1.226091, -10.938288, 0), Vector(1.264807, -11.103647, 0), Vector(1.296752, -11.213792, 0), Vector(1.313029, -11.269913, 0)], [4, 1, 1, 1, 1, 1, 1, 1, 4], [0, 0.910485463, 1.838616153, 2.788107085, 3.768457025, 4.77780678, 5.823027201, 6.890795017, 8], False, 3, [1, 1, 1, 1, 1, 1, 1, 1, 1, 1, 1], False),
    Part.BSplineCurve([Vector(2.589974, -8.565111, 0), Vector(2.543632, -8.5797, 0), Vector(2.452042, -8.608535, 0), Vector(2.319678, -8.661607, 0), Vector(2.193694, -8.721557, 0), Vector(2.073288, -8.787716, 0), Vector(1.959123, -8.861323, 0), Vector(1.849757, -8.940228, 0), Vector(1.747631, -9.02772, 0), Vector(1.651609, -9.121077, 0), Vector(1.562445, -9.219389, 0), Vector(1.482907, -9.3229, 0), Vector(1.410803, -9.429205, 0), Vector(1.348352, -9.54013, 0), Vector(1.294619, -9.655154, 0), Vector(1.248762, -9.773673, 0), Vector(1.21302, -9.896617, 0), Vector(1.195786, -9.980336, 0), Vector(1.18712, -10.022436, 0)], [4, 1, 1, 1, 1, 1, 1, 1, 1, 1, 1, 1, 1, 1, 1, 1, 4], [0, 1.093974974, 2.162151445, 3.208754958, 4.235018977, 5.254163096, 6.266603484, 7.270125483, 8.279987647, 9.281626696, 10.256545703, 11.217884655, 12.172537706, 13.120291723, 14.075274297, 15.032114198, 16], False, 3, [1, 1, 1, 1, 1, 1, 1, 1, 1, 1, 1, 1, 1, 1, 1, 1, 1, 1, 1], False),
    Part.BSplineCurve([Vector(4.397343, -8.804426, 0), Vector(4.368452, -8.783759, 0), Vector(4.310444, -8.742261, 0), Vector(4.218091, -8.687604, 0), Vector(4.122567, -8.636382, 0), Vector(4.021054, -8.594805, 0), Vector(3.917072, -8.555429, 0), Vector(3.807864, -8.524523, 0), Vector(3.694857, -8.498898, 0), Vector(3.57815, -8.477916, 0), Vector(3.458785, -8.465053, 0), Vector(3.337809, -8.457659, 0), Vector(3.21579, -8.457269, 0), Vector(3.092817, -8.466425, 0), Vector(2.968336, -8.478893, 0), Vector(2.842902, -8.500738, 0), Vector(2.716335, -8.529458, 0), Vector(2.632441, -8.553128, 0), Vector(2.589974, -8.565111, 0)], [4, 1, 1, 1, 1, 1, 1, 1, 1, 1, 1, 1, 1, 1, 1, 1, 4], [0, 0.901536881, 1.810174201, 2.722951407, 3.650873295, 4.592999596, 5.545017892, 6.529601249, 7.5348545, 8.553963068, 9.576094043, 10.611551205, 11.649240286, 12.705913058, 13.786930103, 14.879719961, 16], False, 3, [1, 1, 1, 1, 1, 1, 1, 1, 1, 1, 1, 1, 1, 1, 1, 1, 1, 1, 1], False),
    Part.BSplineCurve([Vector(2.790892, -9.252697, 0), Vector(2.815208, -9.24606, 0), Vector(2.862572, -9.233134, 0), Vector(2.933679, -9.220592, 0), Vector(3.002076, -9.214307, 0), Vector(3.068211, -9.213853, 0), Vector(3.131658, -9.221202, 0), Vector(3.192707, -9.234609, 0), Vector(3.25139, -9.254093, 0), Vector(3.32648, -9.291234, 0), Vector(3.417641, -9.352659, 0), Vector(3.517714, -9.4505, 0), Vector(3.613187, -9.570539, 0), Vector(3.684055, -9.688732, 0), Vector(3.739934, -9.794809, 0), Vector(3.782672, -9.883814, 0), Vector(3.824377, -9.980554, 0), Vector(3.866377, -10.084159, 0), Vector(3.908185, -10.194975, 0), Vector(3.950511, -10.312951, 0), Vector(3.991168, -10.438835, 0), Vector(4.017652, -10.525439, 0), Vector(4.031225, -10.569826, 0)], [4, 1, 1, 1, 1, 1, 1, 1, 1, 1, 1, 1, 1, 1, 1, 1, 1, 1, 1, 1, 4], [0, 0.740928597, 1.443208135, 2.119986108, 2.75897178, 3.38438367, 3.99391264, 4.594578025, 5.197471523, 6.452606339, 7.808452879, 9.297145185, 10.951528506, 11.852090658, 12.823028486, 13.854016112, 14.949569282, 16.110321297, 17.336804467, 18.635029525, 20], False, 3, [1, 1, 1, 1, 1, 1, 1, 1, 1, 1, 1, 1, 1, 1, 1, 1, 1, 1, 1, 1, 1, 1, 1], False),
    Part.BSplineCurve([Vector(2.539075, -10.993093, 0), Vector(2.525781, -10.948799, 0), Vector(2.499803, -10.862246, 0), Vector(2.465057, -10.734495, 0), Vector(2.434565, -10.612447, 0), Vector(2.409051, -10.496193, 0), Vector(2.38569, -10.386028, 0), Vector(2.36951, -10.28096, 0), Vector(2.355595, -10.181908, 0), Vector(2.343869, -10.061131, 0), Vector(2.339639, -9.922828, 0), Vector(2.350968, -9.771566, 0), Vector(2.379699, -9.639943, 0), Vector(2.426133, -9.52688, 0), Vector(2.492106, -9.432455, 0), Vector(2.575488, -9.355241, 0), Vector(2.675763, -9.292854, 0), Vector(2.751546, -9.266421, 0), Vector(2.790892, -9.252697, 0)], [4, 1, 1, 1, 1, 1, 1, 1, 1, 1, 1, 1, 1, 1, 1, 1, 4], [0, 1.129632941, 2.207364826, 3.233713364, 4.202180195, 5.114802594, 5.983834708, 6.798254548, 7.557928904, 8.947170659, 10.172937136, 11.254195191, 12.225169878, 13.138921205, 14.044331844, 14.984630429, 16], False, 3, [1, 1, 1, 1, 1, 1, 1, 1, 1, 1, 1, 1, 1, 1, 1, 1, 1, 1, 1], False),
    Part.BSplineCurve([Vector(3.698148, -12.283433, 0), Vector(3.667653, -12.291428, 0), Vector(3.608467, -12.306945, 0), Vector(3.518859, -12.315603, 0), Vector(3.432281, -12.313007, 0), Vector(3.34897, -12.294163, 0), Vector(3.268843, -12.263718, 0), Vector(3.191916, -12.219918, 0), Vector(3.118273, -12.163156, 0), Vector(3.048552, -12.092069, 0), Vector(2.979738, -12.008224, 0), Vector(2.914539, -11.907932, 0), Vector(2.848207, -11.793857, 0), Vector(2.784247, -11.663475, 0), Vector(2.721165, -11.517924, 0), Vector(2.658919, -11.356965, 0), Vector(2.597074, -11.18072, 0), Vector(2.558899, -11.057224, 0), Vector(2.539075, -10.993093, 0)], [4, 1, 1, 1, 1, 1, 1, 1, 1, 1, 1, 1, 1, 1, 1, 1, 4], [0, 0.779608217, 1.513104545, 2.221386719, 2.915408799, 3.617719978, 4.337304937, 5.09957383, 5.912718864, 6.798071582, 7.781475227, 8.871367297, 10.064760717, 11.37536222, 12.799043681, 14.337737445, 16], False, 3, [1, 1, 1, 1, 1, 1, 1, 1, 1, 1, 1, 1, 1, 1, 1, 1, 1, 1, 1], False),
    Part.BSplineCurve([Vector(4.031225, -10.569826, 0), Vector(4.04357, -10.611754, 0), Vector(4.067764, -10.693928, 0), Vector(4.100758, -10.814739, 0), Vector(4.129382, -10.930616, 0), Vector(4.154608, -11.040966, 0), Vector(4.175171, -11.146385, 0), Vector(4.19147, -11.246428, 0), Vector(4.202864, -11.341206, 0), Vector(4.213841, -11.457444, 0), Vector(4.216752, -11.592055, 0), Vector(4.20211, -11.740592, 0), Vector(4.171074, -11.872606, 0), Vector(4.127425, -11.969388, 0), Vector(4.083882, -12.037913, 0), Vector(4.045435, -12.084373, 0), Vector(4.000776, -12.126407, 0), Vector(3.95193, -12.166373, 0), Vector(3.895705, -12.200547, 0), Vector(3.83531, -12.233138, 0), Vector(3.768732, -12.260691, 0), Vector(3.722073, -12.275724, 0), Vector(3.698148, -12.283433, 0)], [4, 1, 1, 1, 1, 1, 1, 1, 1, 1, 1, 1, 1, 1, 1, 1, 1, 1, 1, 1, 4], [0, 1.326170746, 2.599085169, 3.799445801, 4.94753492, 6.033295135, 7.057791564, 8.022292309, 8.929082325, 10.600110398, 12.098179301, 13.447489324, 14.696469786, 15.297719383, 15.907121204, 16.520325778, 17.15644649, 17.817961626, 18.512851169, 19.237448412, 20], False, 3, [1, 1, 1, 1, 1, 1, 1, 1, 1, 1, 1, 1, 1, 1, 1, 1, 1, 1, 1, 1, 1, 1, 1], False),
], False)
sketch5.addConstraint([
    Sketcher.Constraint("Block", 1),
    Sketcher.Constraint("Block", 2),
    Sketcher.Constraint("Block", 3),
    Sketcher.Constraint("Block", 4),
    Sketcher.Constraint("Block", 5),
    Sketcher.Constraint("Block", 6),
    Sketcher.Constraint("Block", 7),
    Sketcher.Constraint("Block", 8),
    Sketcher.Constraint("Block", 9),
    Sketcher.Constraint("Block", 10),
    Sketcher.Constraint("Block", 11),
    Sketcher.Constraint("Block", 12),
    Sketcher.Constraint("Block", 13),
    Sketcher.Constraint("Block", 15),
    Sketcher.Constraint("Block", 16),
    Sketcher.Constraint("Block", 17),
    Sketcher.Constraint("Block", 18),
    Sketcher.Constraint("Block", 19),
    Sketcher.Constraint("Block", 20),
    Sketcher.Constraint("Block", 21),
    Sketcher.Constraint("Block", 22),
    Sketcher.Constraint("Block", 23),
    Sketcher.Constraint("Block", 24),
    Sketcher.Constraint("Block", 25),
    Sketcher.Constraint("Block", 26),
    Sketcher.Constraint("Block", 27),
    Sketcher.Constraint("Block", 28),
    Sketcher.Constraint("Coincident", 0, 2, 1, 2),
    Sketcher.Constraint("Coincident", 13, 1, 14, 1),
    Sketcher.Constraint("Coincident", 14, 2, 15, 2),
    Sketcher.Constraint("Coincident", 16, 1, 0, 1),
])
pocket3 = body.newObject("PartDesign::Pocket", "Pocket002")
pocket3.Profile = sketch5
pocket3.Length = 0.4
pocket3.Reversed = True

sketch6 = body.newObject("Sketcher::SketchObject", "Sketch005")
sketch6.AttachmentSupport = (doc.getObject("XZ_Plane"), [""])
sketch6.MapMode = "FlatFace"
sketch6.AttachmentOffset = App.Placement(Vector(0, 0, 0.414 * 25.4), App.Rotation())
sketch6.addGeometry([
    Part.LineSegment(Vector(2.5, -3.1, 0), Vector(-2.5, -3.1, 0)),
    Part.ArcOfCircle(Part.Circle(Vector(0, 0, 0), Vector(0, 0, 1), 4), math.radians(-129), math.radians(-51)),
], False)
sketch6.addConstraint([
    Sketcher.Constraint("Coincident", 0, 1, 1, 2),
    Sketcher.Constraint("Coincident", 1, 1, 0, 2),
    Sketcher.Constraint("Horizontal", 0),
    Sketcher.Constraint("Coincident", 1, 3, -1, 1),
    Sketcher.Constraint("Radius", 1, Q("4 mm")),
    Sketcher.Constraint("DistanceX", 0, 2, 0, 1, Q("5.02859 mm")),
])
pad2 = body.newObject("PartDesign::Pad", "Pad001")
pad2.Profile = sketch6
pad2.Length = Q("0.828 in")
pad2.Reversed = True

sketch7 = body.newObject("Sketcher::SketchObject", "Sketch006")
sketch7.AttachmentSupport = (doc.getObject("XZ_Plane"), [""])
sketch7.MapMode = "FlatFace"
sketch7.AttachmentOffset = App.Placement(Vector(0, 0, 0.414 * 25.4), App.Rotation())
sketch7.addGeometry(Part.Circle(Vector(0, 0, 0), Vector(0, 0, 1), 11), False)
sketch7.addConstraint([
    Sketcher.Constraint("Coincident", 0, 3, -1, 1),
    Sketcher.Constraint("Diameter", 0, Q("0.875 in")),
])
pocket4 = body.newObject("PartDesign::Pocket", "Pocket003")
pocket4.Profile = sketch7
pocket4.Length = Q("0.1 in")

doc.recompute()
